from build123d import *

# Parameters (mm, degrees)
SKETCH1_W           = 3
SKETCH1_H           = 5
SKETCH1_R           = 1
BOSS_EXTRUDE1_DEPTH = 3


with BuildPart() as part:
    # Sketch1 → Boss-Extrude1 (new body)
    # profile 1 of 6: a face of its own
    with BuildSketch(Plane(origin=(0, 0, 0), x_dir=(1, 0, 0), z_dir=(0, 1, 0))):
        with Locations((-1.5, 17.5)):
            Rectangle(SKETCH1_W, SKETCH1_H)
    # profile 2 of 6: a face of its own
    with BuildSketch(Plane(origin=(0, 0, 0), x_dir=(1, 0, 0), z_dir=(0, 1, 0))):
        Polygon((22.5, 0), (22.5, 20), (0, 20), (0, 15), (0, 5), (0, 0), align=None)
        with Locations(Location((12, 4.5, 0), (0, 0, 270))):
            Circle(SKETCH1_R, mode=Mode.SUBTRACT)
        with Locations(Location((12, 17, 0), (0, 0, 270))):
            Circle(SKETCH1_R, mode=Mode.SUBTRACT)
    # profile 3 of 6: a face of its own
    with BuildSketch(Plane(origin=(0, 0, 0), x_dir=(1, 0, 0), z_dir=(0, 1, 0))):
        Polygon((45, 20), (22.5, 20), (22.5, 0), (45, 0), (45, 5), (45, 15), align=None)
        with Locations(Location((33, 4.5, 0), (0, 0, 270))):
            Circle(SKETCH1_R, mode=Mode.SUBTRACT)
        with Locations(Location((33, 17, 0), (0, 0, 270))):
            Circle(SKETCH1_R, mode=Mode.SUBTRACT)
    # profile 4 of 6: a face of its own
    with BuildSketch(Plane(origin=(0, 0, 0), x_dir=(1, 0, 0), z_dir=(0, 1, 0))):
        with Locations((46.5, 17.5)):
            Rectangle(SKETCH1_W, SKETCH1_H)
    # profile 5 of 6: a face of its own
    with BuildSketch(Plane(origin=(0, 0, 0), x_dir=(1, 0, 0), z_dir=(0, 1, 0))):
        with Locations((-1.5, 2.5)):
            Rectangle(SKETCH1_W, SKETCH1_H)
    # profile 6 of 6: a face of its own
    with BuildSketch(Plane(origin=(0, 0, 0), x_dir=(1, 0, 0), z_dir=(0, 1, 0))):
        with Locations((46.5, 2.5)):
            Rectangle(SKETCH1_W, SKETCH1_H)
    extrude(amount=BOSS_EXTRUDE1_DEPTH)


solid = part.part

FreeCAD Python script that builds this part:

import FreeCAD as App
import Part
import Sketcher
from FreeCAD import Vector


def add_polygon(sketch, points):
    """Adds a closed chain of lines whose ends are joined by coincident constraints."""
    first, n = sketch.GeometryCount, len(points)
    for a, b in zip(points, points[1:] + points[:1]):
        sketch.addGeometry(Part.LineSegment(App.Vector(*a, 0), App.Vector(*b, 0)), False)
    for i in range(n):
        sketch.addConstraint(Sketcher.Constraint("Coincident", first + i, 2, first + (i + 1) % n, 1))

doc = App.newDocument("Part")
body = doc.addObject("PartDesign::Body", "Body")

# Sketch on XZ plane
sketch1 = body.newObject("Sketcher::SketchObject", "Sketch")
sketch1.AttachmentSupport = (doc.getObject("XZ_Plane"), [""])
sketch1.MapMode = "FlatFace"
add_polygon(sketch1, [(-3, -20), (-3, -15), (0, -15), (0, -5), (-3, -5), (-3, 0), (48, 0), (48, -5), (45, -5), (45, -15), (48, -15), (48, -20)])  # lines 0-11
sketch1.addGeometry(Part.Circle(Vector(12, -17, 0), Vector(0, 0, 1), 1), False)  # 12
sketch1.addGeometry(Part.Circle(Vector(12, -4.5, 0), Vector(0, 0, 1), 1), False)  # 13
sketch1.addGeometry(Part.Circle(Vector(33, -17, 0), Vector(0, 0, 1), 1), False)  # 14
sketch1.addGeometry(Part.Circle(Vector(33, -4.5, 0), Vector(0, 0, 1), 1), False)  # 15
sketch1.addConstraint(Sketcher.Constraint("Vertical", 0))
sketch1.addConstraint(Sketcher.Constraint("Horizontal", 1))
sketch1.addConstraint(Sketcher.Constraint("Vertical", 2))
sketch1.addConstraint(Sketcher.Constraint("Horizontal", 3))
sketch1.addConstraint(Sketcher.Constraint("Vertical", 4))
sketch1.addConstraint(Sketcher.Constraint("Horizontal", 5))
sketch1.addConstraint(Sketcher.Constraint("Vertical", 6))
sketch1.addConstraint(Sketcher.Constraint("Horizontal", 7))
sketch1.addConstraint(Sketcher.Constraint("Vertical", 8))
sketch1.addConstraint(Sketcher.Constraint("Horizontal", 9))
sketch1.addConstraint(Sketcher.Constraint("Vertical", 10))
sketch1.addConstraint(Sketcher.Constraint("Horizontal", 11))
sketch1.addConstraint(Sketcher.Constraint("Equal", 12, 13))
sketch1.addConstraint(Sketcher.Constraint("Equal", 13, 14))
sketch1.addConstraint(Sketcher.Constraint("Equal", 14, 15))
sketch1.addConstraint(Sketcher.Constraint("PointOnObject", 1, 2, -2))
sketch1.addConstraint(Sketcher.Constraint("PointOnObject", 4, 2, -1))
sketch1.addConstraint(Sketcher.Constraint("Horizontal", 12, 3, 14, 3))
sketch1.addConstraint(Sketcher.Constraint("Horizontal", 13, 3, 15, 3))
sketch1.addConstraint(Sketcher.Constraint("Horizontal", 3, 2, 6, 2))
sketch1.addConstraint(Sketcher.Constraint("Horizontal", 1, 2, 8, 2))
sketch1.addConstraint(Sketcher.Constraint("Vertical", 12, 3, 13, 3))
sketch1.addConstraint(Sketcher.Constraint("Vertical", 14, 3, 15, 3))
sketch1.addConstraint(Sketcher.Constraint("Vertical", 0, 2, 3, 2))
sketch1.addConstraint(Sketcher.Constraint("Vertical", 6, 2, 9, 2))
sketch1.addConstraint(Sketcher.Constraint("Equal", 3, 7))
sketch1.addConstraint(Sketcher.Constraint("Equal", 0, 4))
sketch1.addConstraint(Sketcher.Constraint("Diameter", 12, 2.0))
sketch1.addConstraint(Sketcher.Constraint("DistanceX", 1, 1, 1, 2, 3.0))
sketch1.addConstraint(Sketcher.Constraint("DistanceX", 5, 1, 5, 2, 51.0))
sketch1.addConstraint(Sketcher.Constraint("DistanceY", 0, 1, 0, 2, 5.0))
sketch1.addConstraint(Sketcher.Constraint("DistanceY", 2, 1, 2, 2, 10.0))
sketch1.addConstraint(Sketcher.Constraint("DistanceX", -1, 1, 12, 3, 12.0))
sketch1.addConstraint(Sketcher.Constraint("DistanceY", 12, 3, -1, 1, 17.0))
sketch1.addConstraint(Sketcher.Constraint("DistanceX", -1, 1, 14, 3, 33.0))
sketch1.addConstraint(Sketcher.Constraint("DistanceY", 13, 3, -1, 1, 4.5))
pad1 = body.newObject("PartDesign::Pad", "Pad")
pad1.Profile = sketch1
pad1.Length = 3
pad1.Reversed = True

doc.recompute()
